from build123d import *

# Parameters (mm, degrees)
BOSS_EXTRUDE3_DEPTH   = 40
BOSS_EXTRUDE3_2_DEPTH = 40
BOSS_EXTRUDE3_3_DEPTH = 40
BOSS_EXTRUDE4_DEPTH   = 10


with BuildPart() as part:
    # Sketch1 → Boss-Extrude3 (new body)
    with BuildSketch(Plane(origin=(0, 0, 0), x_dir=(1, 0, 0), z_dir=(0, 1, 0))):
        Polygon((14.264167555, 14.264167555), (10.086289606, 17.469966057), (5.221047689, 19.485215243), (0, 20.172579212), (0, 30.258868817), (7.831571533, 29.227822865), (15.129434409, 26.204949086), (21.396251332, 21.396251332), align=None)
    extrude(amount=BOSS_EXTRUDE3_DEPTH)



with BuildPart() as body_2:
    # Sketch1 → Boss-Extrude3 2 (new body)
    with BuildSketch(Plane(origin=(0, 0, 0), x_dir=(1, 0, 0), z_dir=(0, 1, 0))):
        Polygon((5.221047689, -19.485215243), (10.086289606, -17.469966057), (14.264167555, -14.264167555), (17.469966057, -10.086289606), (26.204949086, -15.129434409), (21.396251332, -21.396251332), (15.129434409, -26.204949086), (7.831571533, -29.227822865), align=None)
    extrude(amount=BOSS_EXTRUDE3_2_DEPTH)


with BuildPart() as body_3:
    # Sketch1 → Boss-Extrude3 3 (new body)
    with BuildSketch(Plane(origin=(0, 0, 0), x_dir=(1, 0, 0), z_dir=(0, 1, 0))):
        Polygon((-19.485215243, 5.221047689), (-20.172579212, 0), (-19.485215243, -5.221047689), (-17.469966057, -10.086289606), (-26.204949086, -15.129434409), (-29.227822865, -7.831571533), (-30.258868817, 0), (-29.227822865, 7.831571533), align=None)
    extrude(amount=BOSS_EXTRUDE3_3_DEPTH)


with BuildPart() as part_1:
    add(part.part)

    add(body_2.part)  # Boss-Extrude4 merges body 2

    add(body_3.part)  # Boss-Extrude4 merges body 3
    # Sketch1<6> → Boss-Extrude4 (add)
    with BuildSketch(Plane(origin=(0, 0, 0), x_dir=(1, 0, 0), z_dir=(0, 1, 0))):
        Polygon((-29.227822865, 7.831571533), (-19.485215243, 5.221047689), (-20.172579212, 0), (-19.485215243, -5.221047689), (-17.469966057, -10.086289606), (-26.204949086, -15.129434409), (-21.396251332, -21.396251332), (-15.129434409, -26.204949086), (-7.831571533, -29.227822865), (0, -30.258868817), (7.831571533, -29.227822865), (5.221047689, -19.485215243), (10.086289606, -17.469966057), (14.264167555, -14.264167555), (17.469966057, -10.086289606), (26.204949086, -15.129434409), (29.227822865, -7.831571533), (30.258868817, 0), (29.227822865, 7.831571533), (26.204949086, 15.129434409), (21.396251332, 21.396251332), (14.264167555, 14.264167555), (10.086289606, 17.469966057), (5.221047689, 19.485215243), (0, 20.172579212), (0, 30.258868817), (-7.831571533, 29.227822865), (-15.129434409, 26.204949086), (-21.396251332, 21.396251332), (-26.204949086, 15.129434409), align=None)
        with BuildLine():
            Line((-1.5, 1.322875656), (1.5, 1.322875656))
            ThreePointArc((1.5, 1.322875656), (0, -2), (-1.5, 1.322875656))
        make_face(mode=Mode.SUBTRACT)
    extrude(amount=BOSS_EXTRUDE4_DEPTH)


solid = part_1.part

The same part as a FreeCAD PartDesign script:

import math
import FreeCAD as App
import Part
import Sketcher

V = App.Vector
Q = App.Units.Quantity

doc = App.newDocument("Part")
body = doc.addObject("PartDesign::Body", "Body")

sketch1 = body.newObject("Sketcher::SketchObject", "Sketch")
sketch1.AttachmentSupport = (doc.getObject("XZ_Plane"), [""])
sketch1.MapMode = "FlatFace"
sketch1.addGeometry([
    Part.LineSegment(V(10.08629, -17.469966, 0), V(14.264168, -14.264168, 0)),
    Part.LineSegment(V(14.264168, -14.264168, 0), V(21.396251, -21.396251, 0)),
    Part.LineSegment(V(21.396251, -21.396251, 0), V(15.129434, -26.204949, 0)),
    Part.LineSegment(V(15.129434, -26.204949, 0), V(7.831572, -29.227823, 0)),
    Part.LineSegment(V(7.831572, -29.227823, 0), V(0, -30.258869, 0)),
    Part.LineSegment(V(0, -30.258869, 0), V(0, -20.172579, 0)),
    Part.LineSegment(V(0, -20.172579, 0), V(5.221048, -19.485215, 0)),
    Part.LineSegment(V(5.221048, -19.485215, 0), V(10.08629, -17.469966, 0)),
], False)
sketch1.addConstraint([
    Sketcher.Constraint("Coincident", 0, 2, 1, 1),
    Sketcher.Constraint("Coincident", 1, 2, 2, 1),
    Sketcher.Constraint("Coincident", 2, 2, 3, 1),
    Sketcher.Constraint("Coincident", 3, 2, 4, 1),
    Sketcher.Constraint("Coincident", 4, 2, 5, 1),
    Sketcher.Constraint("Coincident", 5, 2, 6, 1),
    Sketcher.Constraint("Coincident", 6, 2, 7, 1),
    Sketcher.Constraint("Coincident", 7, 2, 0, 1),
    Sketcher.Constraint("Vertical", 5),
    Sketcher.Constraint("PointOnObject", 4, 2, -2),
    Sketcher.Constraint("Parallel", 0, 2),
    Sketcher.Constraint("Parallel", 4, 6),
    Sketcher.Constraint("Parallel", 3, 7),
    Sketcher.Constraint("Equal", 2, 3),
    Sketcher.Constraint("Equal", 3, 4),
    Sketcher.Constraint("Equal", 0, 6),
    Sketcher.Constraint("Equal", 6, 7),
    Sketcher.Constraint("Angle", 1, Q("-45 deg")),
    Sketcher.Constraint("Angle", 0, Q("37.5 deg")),
    Sketcher.Constraint("Angle", 3, Q("-157.5 deg")),
    Sketcher.Constraint("Angle", 4, Q("-172.5 deg")),
    Sketcher.Constraint("Distance", 0, 5.2661),
    Sketcher.Constraint("DistanceY", 5, 1, 5, 2, 10.08629),
    Sketcher.Constraint("DistanceY", 1, 2, -1, 1, 21.396251),
])
pad1 = body.newObject("PartDesign::Pad", "Pad")
pad1.Profile = sketch1
pad1.Length = 40
pad1.Reversed = True
body2 = doc.addObject("PartDesign::Body", "Body001")

sketch2 = body2.newObject("Sketcher::SketchObject", "Sketch001")
sketch2.AttachmentSupport = (doc.getObject("XZ_Plane001"), [""])
sketch2.MapMode = "FlatFace"
sketch2.addGeometry([
    Part.LineSegment(V(10.08629, 17.469966, 0), V(5.221048, 19.485215, 0)),
    Part.LineSegment(V(5.221048, 19.485215, 0), V(7.831572, 29.227823, 0)),
    Part.LineSegment(V(7.831572, 29.227823, 0), V(15.129434, 26.204949, 0)),
    Part.LineSegment(V(15.129434, 26.204949, 0), V(21.396251, 21.396251, 0)),
    Part.LineSegment(V(21.396251, 21.396251, 0), V(26.204949, 15.129434, 0)),
    Part.LineSegment(V(26.204949, 15.129434, 0), V(17.469966, 10.08629, 0)),
    Part.LineSegment(V(17.469966, 10.08629, 0), V(14.264168, 14.264168, 0)),
    Part.LineSegment(V(14.264168, 14.264168, 0), V(10.08629, 17.469966, 0)),
], False)
sketch2.addConstraint([
    Sketcher.Constraint("Coincident", 0, 2, 1, 1),
    Sketcher.Constraint("Coincident", 1, 2, 2, 1),
    Sketcher.Constraint("Coincident", 2, 2, 3, 1),
    Sketcher.Constraint("Coincident", 3, 2, 4, 1),
    Sketcher.Constraint("Coincident", 4, 2, 5, 1),
    Sketcher.Constraint("Coincident", 5, 2, 6, 1),
    Sketcher.Constraint("Coincident", 6, 2, 7, 1),
    Sketcher.Constraint("Coincident", 7, 2, 0, 1),
    Sketcher.Constraint("Parallel", 0, 2),
    Sketcher.Constraint("Parallel", 4, 6),
    Sketcher.Constraint("Parallel", 3, 7),
    Sketcher.Constraint("Equal", 2, 3),
    Sketcher.Constraint("Equal", 3, 4),
    Sketcher.Constraint("Equal", 1, 5),
    Sketcher.Constraint("Equal", 0, 6),
    Sketcher.Constraint("Equal", 6, 7),
    Sketcher.Constraint("Angle", 1, Q("75 deg")),
    Sketcher.Constraint("Angle", 5, Q("-150 deg")),
    Sketcher.Constraint("Angle", 0, Q("157.5 deg")),
    Sketcher.Constraint("Angle", 3, Q("-37.5 deg")),
    Sketcher.Constraint("Distance", 0, 5.2661),
    Sketcher.Constraint("DistanceX", 0, 2, 4, 2, 20.983901),
    Sketcher.Constraint("DistanceX", -1, 1, 1, 2, 7.831572),
    Sketcher.Constraint("DistanceY", -1, 1, 2, 2, 26.204949),
])
pad2 = body2.newObject("PartDesign::Pad", "Pad001")
pad2.Profile = sketch2
pad2.Length = 40
pad2.Reversed = True
body3 = doc.addObject("PartDesign::Body", "Body002")

sketch3 = body3.newObject("Sketcher::SketchObject", "Sketch002")
sketch3.AttachmentSupport = (doc.getObject("XZ_Plane002"), [""])
sketch3.MapMode = "FlatFace"
sketch3.addGeometry([
    Part.LineSegment(V(-20.172579, 0, 0), V(-19.485215, -5.221048, 0)),
    Part.LineSegment(V(-19.485215, -5.221048, 0), V(-29.227823, -7.831572, 0)),
    Part.LineSegment(V(-29.227823, -7.831572, 0), V(-30.258869, 0, 0)),
    Part.LineSegment(V(-30.258869, 0, 0), V(-29.227823, 7.831572, 0)),
    Part.LineSegment(V(-29.227823, 7.831572, 0), V(-26.204949, 15.129434, 0)),
    Part.LineSegment(V(-26.204949, 15.129434, 0), V(-17.469966, 10.08629, 0)),
    Part.LineSegment(V(-17.469966, 10.08629, 0), V(-19.485215, 5.221048, 0)),
    Part.LineSegment(V(-19.485215, 5.221048, 0), V(-20.172579, 0, 0)),
], False)
sketch3.addConstraint([
    Sketcher.Constraint("Coincident", 0, 2, 1, 1),
    Sketcher.Constraint("Coincident", 1, 2, 2, 1),
    Sketcher.Constraint("Coincident", 2, 2, 3, 1),
    Sketcher.Constraint("Coincident", 3, 2, 4, 1),
    Sketcher.Constraint("Coincident", 4, 2, 5, 1),
    Sketcher.Constraint("Coincident", 5, 2, 6, 1),
    Sketcher.Constraint("Coincident", 6, 2, 7, 1),
    Sketcher.Constraint("Coincident", 7, 2, 0, 1),
    Sketcher.Constraint("Symmetric", 1, 2, 3, 2, -1),
    Sketcher.Constraint("Symmetric", 0, 2, 6, 2, -1),
    Sketcher.Constraint("PointOnObject", 2, 2, -1),
    Sketcher.Constraint("PointOnObject", 7, 2, -1),
    Sketcher.Constraint("Parallel", 0, 2),
    Sketcher.Constraint("Parallel", 4, 6),
    Sketcher.Constraint("Equal", 3, 4),
    Sketcher.Constraint("Equal", 1, 5),
    Sketcher.Constraint("Equal", 0, 6),
    Sketcher.Constraint("Angle", 1, Q("-165 deg")),
    Sketcher.Constraint("Angle", 5, Q("-30 deg")),
    Sketcher.Constraint("Distance", 0, 5.2661),
    Sketcher.Constraint("Distance", 1, 10.08629),
    Sketcher.Constraint("DistanceX", 2, 2, -1, 1, 30.258869),
])
pad3 = body3.newObject("PartDesign::Pad", "Pad002")
pad3.Profile = sketch3
pad3.Length = 40
pad3.Reversed = True
body.AllowCompound = True
doc.recompute()

boolean = body.newObject("PartDesign::Boolean", "Boolean")
boolean.Type = "Fuse"
boolean.addObjects([body2])
doc.recompute()

boolean2 = body.newObject("PartDesign::Boolean", "Boolean001")
boolean2.Type = "Fuse"
boolean2.addObjects([body3])

sketch4 = body.newObject("Sketcher::SketchObject", "Sketch003")
sketch4.AttachmentSupport = (doc.getObject("XZ_Plane"), [""])
sketch4.MapMode = "FlatFace"
sketch4.addGeometry([
    Part.LineSegment(V(-29.227823, -7.831572, 0), V(-19.485215, -5.221048, 0)),
    Part.LineSegment(V(-19.485215, -5.221048, 0), V(-20.172579, 0, 0)),
    Part.LineSegment(V(-20.172579, 0, 0), V(-19.485215, 5.221048, 0)),
    Part.LineSegment(V(-19.485215, 5.221048, 0), V(-17.469966, 10.08629, 0)),
    Part.LineSegment(V(-17.469966, 10.08629, 0), V(-26.204949, 15.129434, 0)),
    Part.LineSegment(V(-26.204949, 15.129434, 0), V(-21.396251, 21.396251, 0)),
    Part.LineSegment(V(-21.396251, 21.396251, 0), V(-15.129434, 26.204949, 0)),
    Part.LineSegment(V(-15.129434, 26.204949, 0), V(-7.831572, 29.227823, 0)),
    Part.LineSegment(V(-7.831572, 29.227823, 0), V(0, 30.258869, 0)),
    Part.LineSegment(V(0, 30.258869, 0), V(7.831572, 29.227823, 0)),
    Part.LineSegment(V(7.831572, 29.227823, 0), V(5.221048, 19.485215, 0)),
    Part.LineSegment(V(5.221048, 19.485215, 0), V(10.08629, 17.469966, 0)),
    Part.LineSegment(V(10.08629, 17.469966, 0), V(14.264168, 14.264168, 0)),
    Part.LineSegment(V(14.264168, 14.264168, 0), V(17.469966, 10.08629, 0)),
    Part.LineSegment(V(17.469966, 10.08629, 0), V(26.204949, 15.129434, 0)),
    Part.LineSegment(V(26.204949, 15.129434, 0), V(29.227823, 7.831572, 0)),
    Part.LineSegment(V(29.227823, 7.831572, 0), V(30.258869, 0, 0)),
    Part.LineSegment(V(30.258869, 0, 0), V(29.227823, -7.831572, 0)),
    Part.LineSegment(V(29.227823, -7.831572, 0), V(26.204949, -15.129434, 0)),
    Part.LineSegment(V(26.204949, -15.129434, 0), V(21.396251, -21.396251, 0)),
    Part.LineSegment(V(21.396251, -21.396251, 0), V(14.264168, -14.264168, 0)),
    Part.LineSegment(V(14.264168, -14.264168, 0), V(10.08629, -17.469966, 0)),
    Part.LineSegment(V(10.08629, -17.469966, 0), V(5.221048, -19.485215, 0)),
    Part.LineSegment(V(5.221048, -19.485215, 0), V(0, -20.172579, 0)),
    Part.LineSegment(V(0, -20.172579, 0), V(0, -30.258869, 0)),
    Part.LineSegment(V(0, -30.258869, 0), V(-7.831572, -29.227823, 0)),
    Part.LineSegment(V(-7.831572, -29.227823, 0), V(-15.129434, -26.204949, 0)),
    Part.LineSegment(V(-15.129434, -26.204949, 0), V(-21.396251, -21.396251, 0)),
    Part.LineSegment(V(-21.396251, -21.396251, 0), V(-26.204949, -15.129434, 0)),
    Part.LineSegment(V(-26.204949, -15.129434, 0), V(-29.227823, -7.831572, 0)),
    Part.ArcOfCircle(Part.Circle(V(0, 0, 0), V(0, 0, 1), 2), math.radians(-41.409622), math.radians(221.409622)),
    Part.LineSegment(V(-1.5, -1.322876, 0), V(1.5, -1.322876, 0)),
], False)
sketch4.addConstraint([
    Sketcher.Constraint("Coincident", 0, 2, 1, 1),
    Sketcher.Constraint("Coincident", 1, 2, 2, 1),
    Sketcher.Constraint("Coincident", 2, 2, 3, 1),
    Sketcher.Constraint("Coincident", 3, 2, 4, 1),
    Sketcher.Constraint("Coincident", 4, 2, 5, 1),
    Sketcher.Constraint("Coincident", 5, 2, 6, 1),
    Sketcher.Constraint("Coincident", 6, 2, 7, 1),
    Sketcher.Constraint("Coincident", 7, 2, 8, 1),
    Sketcher.Constraint("Coincident", 8, 2, 9, 1),
    Sketcher.Constraint("Coincident", 9, 2, 10, 1),
    Sketcher.Constraint("Coincident", 10, 2, 11, 1),
    Sketcher.Constraint("Coincident", 11, 2, 12, 1),
    Sketcher.Constraint("Coincident", 12, 2, 13, 1),
    Sketcher.Constraint("Coincident", 13, 2, 14, 1),
    Sketcher.Constraint("Coincident", 14, 2, 15, 1),
    Sketcher.Constraint("Coincident", 15, 2, 16, 1),
    Sketcher.Constraint("Coincident", 16, 2, 17, 1),
    Sketcher.Constraint("Coincident", 17, 2, 18, 1),
    Sketcher.Constraint("Coincident", 18, 2, 19, 1),
    Sketcher.Constraint("Coincident", 19, 2, 20, 1),
    Sketcher.Constraint("Coincident", 20, 2, 21, 1),
    Sketcher.Constraint("Coincident", 21, 2, 22, 1),
    Sketcher.Constraint("Coincident", 22, 2, 23, 1),
    Sketcher.Constraint("Coincident", 23, 2, 24, 1),
    Sketcher.Constraint("Coincident", 24, 2, 25, 1),
    Sketcher.Constraint("Coincident", 25, 2, 26, 1),
    Sketcher.Constraint("Coincident", 26, 2, 27, 1),
    Sketcher.Constraint("Coincident", 27, 2, 28, 1),
    Sketcher.Constraint("Coincident", 28, 2, 29, 1),
    Sketcher.Constraint("Coincident", 29, 2, 0, 1),
    Sketcher.Constraint("Coincident", 30, 1, 31, 2),
    Sketcher.Constraint("Coincident", 31, 1, 30, 2),
    Sketcher.Constraint("Vertical", 24),
    Sketcher.Constraint("Horizontal", 31),
    Sketcher.Constraint("Coincident", 30, 3, -1, 1),
    Sketcher.Constraint("Symmetric", 4, 2, 18, 2, -1, 1),
    Sketcher.Constraint("Symmetric", 5, 2, 19, 2, -1, 1),
    Sketcher.Constraint("Symmetric", 8, 2, 24, 2, -1, 1),
    Sketcher.Constraint("Symmetric", 9, 2, 25, 2, -1, 1),
    Sketcher.Constraint("Symmetric", 14, 2, 28, 2, -1, 1),
    Sketcher.Constraint("Symmetric", 15, 2, 29, 2, -1, 1),
    Sketcher.Constraint("Symmetric", 7, 2, 9, 2, -2),
    Sketcher.Constraint("Symmetric", 3, 2, 13, 2, -2),
    Sketcher.Constraint("Symmetric", 4, 2, 14, 2, -2),
    Sketcher.Constraint("Symmetric", 19, 2, 27, 2, -2),
    Sketcher.Constraint("Symmetric", 17, 2, 29, 2, -2),
    Sketcher.Constraint("Symmetric", 0, 2, 2, 2, -1),
    Sketcher.Constraint("Symmetric", 12, 2, 20, 2, -1),
    Sketcher.Constraint("Symmetric", 11, 2, 21, 2, -1),
    Sketcher.Constraint("Symmetric", 10, 2, 22, 2, -1),
    Sketcher.Constraint("Symmetric", 6, 2, 26, 2, -1),
    Sketcher.Constraint("PointOnObject", 1, 2, -1),
    Sketcher.Constraint("PointOnObject", 8, 2, -2),
    Sketcher.Constraint("PointOnObject", 16, 2, -1),
    Sketcher.Constraint("Perpendicular", 1, 8),
    Sketcher.Constraint("Perpendicular", 3, 11),
    Sketcher.Constraint("Perpendicular", 5, 12),
    Sketcher.Constraint("Perpendicular", 6, 13),
    Sketcher.Constraint("Perpendicular", 7, 15),
    Sketcher.Constraint("Perpendicular", 8, 16),
    Sketcher.Constraint("Perpendicular", 11, 18),
    Sketcher.Constraint("Perpendicular", 13, 21),
    Sketcher.Constraint("Perpendicular", 16, 23),
    Sketcher.Constraint("Equal", 2, 3),
    Sketcher.Constraint("Equal", 0, 4),
    Sketcher.Constraint("Equal", 5, 6),
    Sketcher.Constraint("Equal", 6, 7),
    Sketcher.Constraint("Equal", 7, 8),
    Sketcher.Constraint("Equal", 4, 10),
    Sketcher.Constraint("Equal", 3, 11),
    Sketcher.Constraint("Equal", 11, 12),
    Sketcher.Constraint("Equal", 12, 13),
    Sketcher.Constraint("Equal", 9, 15),
    Sketcher.Constraint("Equal", 15, 16),
    Sketcher.Constraint("Equal", 14, 20),
    Sketcher.Constraint("Radius", 30, 2.0),
    Sketcher.Constraint("DistanceX", 31, 1, 31, 2, 3.0),
    Sketcher.Constraint("Angle", 0, Q("15 deg")),
    Sketcher.Constraint("Distance", 1, 5.2661),
    Sketcher.Constraint("DistanceY", 24, 2, 24, 1, 10.08629),
])
pad4 = body.newObject("PartDesign::Pad", "Pad003")
pad4.Profile = sketch4
pad4.Length = 10
pad4.Reversed = True

doc.recompute()
